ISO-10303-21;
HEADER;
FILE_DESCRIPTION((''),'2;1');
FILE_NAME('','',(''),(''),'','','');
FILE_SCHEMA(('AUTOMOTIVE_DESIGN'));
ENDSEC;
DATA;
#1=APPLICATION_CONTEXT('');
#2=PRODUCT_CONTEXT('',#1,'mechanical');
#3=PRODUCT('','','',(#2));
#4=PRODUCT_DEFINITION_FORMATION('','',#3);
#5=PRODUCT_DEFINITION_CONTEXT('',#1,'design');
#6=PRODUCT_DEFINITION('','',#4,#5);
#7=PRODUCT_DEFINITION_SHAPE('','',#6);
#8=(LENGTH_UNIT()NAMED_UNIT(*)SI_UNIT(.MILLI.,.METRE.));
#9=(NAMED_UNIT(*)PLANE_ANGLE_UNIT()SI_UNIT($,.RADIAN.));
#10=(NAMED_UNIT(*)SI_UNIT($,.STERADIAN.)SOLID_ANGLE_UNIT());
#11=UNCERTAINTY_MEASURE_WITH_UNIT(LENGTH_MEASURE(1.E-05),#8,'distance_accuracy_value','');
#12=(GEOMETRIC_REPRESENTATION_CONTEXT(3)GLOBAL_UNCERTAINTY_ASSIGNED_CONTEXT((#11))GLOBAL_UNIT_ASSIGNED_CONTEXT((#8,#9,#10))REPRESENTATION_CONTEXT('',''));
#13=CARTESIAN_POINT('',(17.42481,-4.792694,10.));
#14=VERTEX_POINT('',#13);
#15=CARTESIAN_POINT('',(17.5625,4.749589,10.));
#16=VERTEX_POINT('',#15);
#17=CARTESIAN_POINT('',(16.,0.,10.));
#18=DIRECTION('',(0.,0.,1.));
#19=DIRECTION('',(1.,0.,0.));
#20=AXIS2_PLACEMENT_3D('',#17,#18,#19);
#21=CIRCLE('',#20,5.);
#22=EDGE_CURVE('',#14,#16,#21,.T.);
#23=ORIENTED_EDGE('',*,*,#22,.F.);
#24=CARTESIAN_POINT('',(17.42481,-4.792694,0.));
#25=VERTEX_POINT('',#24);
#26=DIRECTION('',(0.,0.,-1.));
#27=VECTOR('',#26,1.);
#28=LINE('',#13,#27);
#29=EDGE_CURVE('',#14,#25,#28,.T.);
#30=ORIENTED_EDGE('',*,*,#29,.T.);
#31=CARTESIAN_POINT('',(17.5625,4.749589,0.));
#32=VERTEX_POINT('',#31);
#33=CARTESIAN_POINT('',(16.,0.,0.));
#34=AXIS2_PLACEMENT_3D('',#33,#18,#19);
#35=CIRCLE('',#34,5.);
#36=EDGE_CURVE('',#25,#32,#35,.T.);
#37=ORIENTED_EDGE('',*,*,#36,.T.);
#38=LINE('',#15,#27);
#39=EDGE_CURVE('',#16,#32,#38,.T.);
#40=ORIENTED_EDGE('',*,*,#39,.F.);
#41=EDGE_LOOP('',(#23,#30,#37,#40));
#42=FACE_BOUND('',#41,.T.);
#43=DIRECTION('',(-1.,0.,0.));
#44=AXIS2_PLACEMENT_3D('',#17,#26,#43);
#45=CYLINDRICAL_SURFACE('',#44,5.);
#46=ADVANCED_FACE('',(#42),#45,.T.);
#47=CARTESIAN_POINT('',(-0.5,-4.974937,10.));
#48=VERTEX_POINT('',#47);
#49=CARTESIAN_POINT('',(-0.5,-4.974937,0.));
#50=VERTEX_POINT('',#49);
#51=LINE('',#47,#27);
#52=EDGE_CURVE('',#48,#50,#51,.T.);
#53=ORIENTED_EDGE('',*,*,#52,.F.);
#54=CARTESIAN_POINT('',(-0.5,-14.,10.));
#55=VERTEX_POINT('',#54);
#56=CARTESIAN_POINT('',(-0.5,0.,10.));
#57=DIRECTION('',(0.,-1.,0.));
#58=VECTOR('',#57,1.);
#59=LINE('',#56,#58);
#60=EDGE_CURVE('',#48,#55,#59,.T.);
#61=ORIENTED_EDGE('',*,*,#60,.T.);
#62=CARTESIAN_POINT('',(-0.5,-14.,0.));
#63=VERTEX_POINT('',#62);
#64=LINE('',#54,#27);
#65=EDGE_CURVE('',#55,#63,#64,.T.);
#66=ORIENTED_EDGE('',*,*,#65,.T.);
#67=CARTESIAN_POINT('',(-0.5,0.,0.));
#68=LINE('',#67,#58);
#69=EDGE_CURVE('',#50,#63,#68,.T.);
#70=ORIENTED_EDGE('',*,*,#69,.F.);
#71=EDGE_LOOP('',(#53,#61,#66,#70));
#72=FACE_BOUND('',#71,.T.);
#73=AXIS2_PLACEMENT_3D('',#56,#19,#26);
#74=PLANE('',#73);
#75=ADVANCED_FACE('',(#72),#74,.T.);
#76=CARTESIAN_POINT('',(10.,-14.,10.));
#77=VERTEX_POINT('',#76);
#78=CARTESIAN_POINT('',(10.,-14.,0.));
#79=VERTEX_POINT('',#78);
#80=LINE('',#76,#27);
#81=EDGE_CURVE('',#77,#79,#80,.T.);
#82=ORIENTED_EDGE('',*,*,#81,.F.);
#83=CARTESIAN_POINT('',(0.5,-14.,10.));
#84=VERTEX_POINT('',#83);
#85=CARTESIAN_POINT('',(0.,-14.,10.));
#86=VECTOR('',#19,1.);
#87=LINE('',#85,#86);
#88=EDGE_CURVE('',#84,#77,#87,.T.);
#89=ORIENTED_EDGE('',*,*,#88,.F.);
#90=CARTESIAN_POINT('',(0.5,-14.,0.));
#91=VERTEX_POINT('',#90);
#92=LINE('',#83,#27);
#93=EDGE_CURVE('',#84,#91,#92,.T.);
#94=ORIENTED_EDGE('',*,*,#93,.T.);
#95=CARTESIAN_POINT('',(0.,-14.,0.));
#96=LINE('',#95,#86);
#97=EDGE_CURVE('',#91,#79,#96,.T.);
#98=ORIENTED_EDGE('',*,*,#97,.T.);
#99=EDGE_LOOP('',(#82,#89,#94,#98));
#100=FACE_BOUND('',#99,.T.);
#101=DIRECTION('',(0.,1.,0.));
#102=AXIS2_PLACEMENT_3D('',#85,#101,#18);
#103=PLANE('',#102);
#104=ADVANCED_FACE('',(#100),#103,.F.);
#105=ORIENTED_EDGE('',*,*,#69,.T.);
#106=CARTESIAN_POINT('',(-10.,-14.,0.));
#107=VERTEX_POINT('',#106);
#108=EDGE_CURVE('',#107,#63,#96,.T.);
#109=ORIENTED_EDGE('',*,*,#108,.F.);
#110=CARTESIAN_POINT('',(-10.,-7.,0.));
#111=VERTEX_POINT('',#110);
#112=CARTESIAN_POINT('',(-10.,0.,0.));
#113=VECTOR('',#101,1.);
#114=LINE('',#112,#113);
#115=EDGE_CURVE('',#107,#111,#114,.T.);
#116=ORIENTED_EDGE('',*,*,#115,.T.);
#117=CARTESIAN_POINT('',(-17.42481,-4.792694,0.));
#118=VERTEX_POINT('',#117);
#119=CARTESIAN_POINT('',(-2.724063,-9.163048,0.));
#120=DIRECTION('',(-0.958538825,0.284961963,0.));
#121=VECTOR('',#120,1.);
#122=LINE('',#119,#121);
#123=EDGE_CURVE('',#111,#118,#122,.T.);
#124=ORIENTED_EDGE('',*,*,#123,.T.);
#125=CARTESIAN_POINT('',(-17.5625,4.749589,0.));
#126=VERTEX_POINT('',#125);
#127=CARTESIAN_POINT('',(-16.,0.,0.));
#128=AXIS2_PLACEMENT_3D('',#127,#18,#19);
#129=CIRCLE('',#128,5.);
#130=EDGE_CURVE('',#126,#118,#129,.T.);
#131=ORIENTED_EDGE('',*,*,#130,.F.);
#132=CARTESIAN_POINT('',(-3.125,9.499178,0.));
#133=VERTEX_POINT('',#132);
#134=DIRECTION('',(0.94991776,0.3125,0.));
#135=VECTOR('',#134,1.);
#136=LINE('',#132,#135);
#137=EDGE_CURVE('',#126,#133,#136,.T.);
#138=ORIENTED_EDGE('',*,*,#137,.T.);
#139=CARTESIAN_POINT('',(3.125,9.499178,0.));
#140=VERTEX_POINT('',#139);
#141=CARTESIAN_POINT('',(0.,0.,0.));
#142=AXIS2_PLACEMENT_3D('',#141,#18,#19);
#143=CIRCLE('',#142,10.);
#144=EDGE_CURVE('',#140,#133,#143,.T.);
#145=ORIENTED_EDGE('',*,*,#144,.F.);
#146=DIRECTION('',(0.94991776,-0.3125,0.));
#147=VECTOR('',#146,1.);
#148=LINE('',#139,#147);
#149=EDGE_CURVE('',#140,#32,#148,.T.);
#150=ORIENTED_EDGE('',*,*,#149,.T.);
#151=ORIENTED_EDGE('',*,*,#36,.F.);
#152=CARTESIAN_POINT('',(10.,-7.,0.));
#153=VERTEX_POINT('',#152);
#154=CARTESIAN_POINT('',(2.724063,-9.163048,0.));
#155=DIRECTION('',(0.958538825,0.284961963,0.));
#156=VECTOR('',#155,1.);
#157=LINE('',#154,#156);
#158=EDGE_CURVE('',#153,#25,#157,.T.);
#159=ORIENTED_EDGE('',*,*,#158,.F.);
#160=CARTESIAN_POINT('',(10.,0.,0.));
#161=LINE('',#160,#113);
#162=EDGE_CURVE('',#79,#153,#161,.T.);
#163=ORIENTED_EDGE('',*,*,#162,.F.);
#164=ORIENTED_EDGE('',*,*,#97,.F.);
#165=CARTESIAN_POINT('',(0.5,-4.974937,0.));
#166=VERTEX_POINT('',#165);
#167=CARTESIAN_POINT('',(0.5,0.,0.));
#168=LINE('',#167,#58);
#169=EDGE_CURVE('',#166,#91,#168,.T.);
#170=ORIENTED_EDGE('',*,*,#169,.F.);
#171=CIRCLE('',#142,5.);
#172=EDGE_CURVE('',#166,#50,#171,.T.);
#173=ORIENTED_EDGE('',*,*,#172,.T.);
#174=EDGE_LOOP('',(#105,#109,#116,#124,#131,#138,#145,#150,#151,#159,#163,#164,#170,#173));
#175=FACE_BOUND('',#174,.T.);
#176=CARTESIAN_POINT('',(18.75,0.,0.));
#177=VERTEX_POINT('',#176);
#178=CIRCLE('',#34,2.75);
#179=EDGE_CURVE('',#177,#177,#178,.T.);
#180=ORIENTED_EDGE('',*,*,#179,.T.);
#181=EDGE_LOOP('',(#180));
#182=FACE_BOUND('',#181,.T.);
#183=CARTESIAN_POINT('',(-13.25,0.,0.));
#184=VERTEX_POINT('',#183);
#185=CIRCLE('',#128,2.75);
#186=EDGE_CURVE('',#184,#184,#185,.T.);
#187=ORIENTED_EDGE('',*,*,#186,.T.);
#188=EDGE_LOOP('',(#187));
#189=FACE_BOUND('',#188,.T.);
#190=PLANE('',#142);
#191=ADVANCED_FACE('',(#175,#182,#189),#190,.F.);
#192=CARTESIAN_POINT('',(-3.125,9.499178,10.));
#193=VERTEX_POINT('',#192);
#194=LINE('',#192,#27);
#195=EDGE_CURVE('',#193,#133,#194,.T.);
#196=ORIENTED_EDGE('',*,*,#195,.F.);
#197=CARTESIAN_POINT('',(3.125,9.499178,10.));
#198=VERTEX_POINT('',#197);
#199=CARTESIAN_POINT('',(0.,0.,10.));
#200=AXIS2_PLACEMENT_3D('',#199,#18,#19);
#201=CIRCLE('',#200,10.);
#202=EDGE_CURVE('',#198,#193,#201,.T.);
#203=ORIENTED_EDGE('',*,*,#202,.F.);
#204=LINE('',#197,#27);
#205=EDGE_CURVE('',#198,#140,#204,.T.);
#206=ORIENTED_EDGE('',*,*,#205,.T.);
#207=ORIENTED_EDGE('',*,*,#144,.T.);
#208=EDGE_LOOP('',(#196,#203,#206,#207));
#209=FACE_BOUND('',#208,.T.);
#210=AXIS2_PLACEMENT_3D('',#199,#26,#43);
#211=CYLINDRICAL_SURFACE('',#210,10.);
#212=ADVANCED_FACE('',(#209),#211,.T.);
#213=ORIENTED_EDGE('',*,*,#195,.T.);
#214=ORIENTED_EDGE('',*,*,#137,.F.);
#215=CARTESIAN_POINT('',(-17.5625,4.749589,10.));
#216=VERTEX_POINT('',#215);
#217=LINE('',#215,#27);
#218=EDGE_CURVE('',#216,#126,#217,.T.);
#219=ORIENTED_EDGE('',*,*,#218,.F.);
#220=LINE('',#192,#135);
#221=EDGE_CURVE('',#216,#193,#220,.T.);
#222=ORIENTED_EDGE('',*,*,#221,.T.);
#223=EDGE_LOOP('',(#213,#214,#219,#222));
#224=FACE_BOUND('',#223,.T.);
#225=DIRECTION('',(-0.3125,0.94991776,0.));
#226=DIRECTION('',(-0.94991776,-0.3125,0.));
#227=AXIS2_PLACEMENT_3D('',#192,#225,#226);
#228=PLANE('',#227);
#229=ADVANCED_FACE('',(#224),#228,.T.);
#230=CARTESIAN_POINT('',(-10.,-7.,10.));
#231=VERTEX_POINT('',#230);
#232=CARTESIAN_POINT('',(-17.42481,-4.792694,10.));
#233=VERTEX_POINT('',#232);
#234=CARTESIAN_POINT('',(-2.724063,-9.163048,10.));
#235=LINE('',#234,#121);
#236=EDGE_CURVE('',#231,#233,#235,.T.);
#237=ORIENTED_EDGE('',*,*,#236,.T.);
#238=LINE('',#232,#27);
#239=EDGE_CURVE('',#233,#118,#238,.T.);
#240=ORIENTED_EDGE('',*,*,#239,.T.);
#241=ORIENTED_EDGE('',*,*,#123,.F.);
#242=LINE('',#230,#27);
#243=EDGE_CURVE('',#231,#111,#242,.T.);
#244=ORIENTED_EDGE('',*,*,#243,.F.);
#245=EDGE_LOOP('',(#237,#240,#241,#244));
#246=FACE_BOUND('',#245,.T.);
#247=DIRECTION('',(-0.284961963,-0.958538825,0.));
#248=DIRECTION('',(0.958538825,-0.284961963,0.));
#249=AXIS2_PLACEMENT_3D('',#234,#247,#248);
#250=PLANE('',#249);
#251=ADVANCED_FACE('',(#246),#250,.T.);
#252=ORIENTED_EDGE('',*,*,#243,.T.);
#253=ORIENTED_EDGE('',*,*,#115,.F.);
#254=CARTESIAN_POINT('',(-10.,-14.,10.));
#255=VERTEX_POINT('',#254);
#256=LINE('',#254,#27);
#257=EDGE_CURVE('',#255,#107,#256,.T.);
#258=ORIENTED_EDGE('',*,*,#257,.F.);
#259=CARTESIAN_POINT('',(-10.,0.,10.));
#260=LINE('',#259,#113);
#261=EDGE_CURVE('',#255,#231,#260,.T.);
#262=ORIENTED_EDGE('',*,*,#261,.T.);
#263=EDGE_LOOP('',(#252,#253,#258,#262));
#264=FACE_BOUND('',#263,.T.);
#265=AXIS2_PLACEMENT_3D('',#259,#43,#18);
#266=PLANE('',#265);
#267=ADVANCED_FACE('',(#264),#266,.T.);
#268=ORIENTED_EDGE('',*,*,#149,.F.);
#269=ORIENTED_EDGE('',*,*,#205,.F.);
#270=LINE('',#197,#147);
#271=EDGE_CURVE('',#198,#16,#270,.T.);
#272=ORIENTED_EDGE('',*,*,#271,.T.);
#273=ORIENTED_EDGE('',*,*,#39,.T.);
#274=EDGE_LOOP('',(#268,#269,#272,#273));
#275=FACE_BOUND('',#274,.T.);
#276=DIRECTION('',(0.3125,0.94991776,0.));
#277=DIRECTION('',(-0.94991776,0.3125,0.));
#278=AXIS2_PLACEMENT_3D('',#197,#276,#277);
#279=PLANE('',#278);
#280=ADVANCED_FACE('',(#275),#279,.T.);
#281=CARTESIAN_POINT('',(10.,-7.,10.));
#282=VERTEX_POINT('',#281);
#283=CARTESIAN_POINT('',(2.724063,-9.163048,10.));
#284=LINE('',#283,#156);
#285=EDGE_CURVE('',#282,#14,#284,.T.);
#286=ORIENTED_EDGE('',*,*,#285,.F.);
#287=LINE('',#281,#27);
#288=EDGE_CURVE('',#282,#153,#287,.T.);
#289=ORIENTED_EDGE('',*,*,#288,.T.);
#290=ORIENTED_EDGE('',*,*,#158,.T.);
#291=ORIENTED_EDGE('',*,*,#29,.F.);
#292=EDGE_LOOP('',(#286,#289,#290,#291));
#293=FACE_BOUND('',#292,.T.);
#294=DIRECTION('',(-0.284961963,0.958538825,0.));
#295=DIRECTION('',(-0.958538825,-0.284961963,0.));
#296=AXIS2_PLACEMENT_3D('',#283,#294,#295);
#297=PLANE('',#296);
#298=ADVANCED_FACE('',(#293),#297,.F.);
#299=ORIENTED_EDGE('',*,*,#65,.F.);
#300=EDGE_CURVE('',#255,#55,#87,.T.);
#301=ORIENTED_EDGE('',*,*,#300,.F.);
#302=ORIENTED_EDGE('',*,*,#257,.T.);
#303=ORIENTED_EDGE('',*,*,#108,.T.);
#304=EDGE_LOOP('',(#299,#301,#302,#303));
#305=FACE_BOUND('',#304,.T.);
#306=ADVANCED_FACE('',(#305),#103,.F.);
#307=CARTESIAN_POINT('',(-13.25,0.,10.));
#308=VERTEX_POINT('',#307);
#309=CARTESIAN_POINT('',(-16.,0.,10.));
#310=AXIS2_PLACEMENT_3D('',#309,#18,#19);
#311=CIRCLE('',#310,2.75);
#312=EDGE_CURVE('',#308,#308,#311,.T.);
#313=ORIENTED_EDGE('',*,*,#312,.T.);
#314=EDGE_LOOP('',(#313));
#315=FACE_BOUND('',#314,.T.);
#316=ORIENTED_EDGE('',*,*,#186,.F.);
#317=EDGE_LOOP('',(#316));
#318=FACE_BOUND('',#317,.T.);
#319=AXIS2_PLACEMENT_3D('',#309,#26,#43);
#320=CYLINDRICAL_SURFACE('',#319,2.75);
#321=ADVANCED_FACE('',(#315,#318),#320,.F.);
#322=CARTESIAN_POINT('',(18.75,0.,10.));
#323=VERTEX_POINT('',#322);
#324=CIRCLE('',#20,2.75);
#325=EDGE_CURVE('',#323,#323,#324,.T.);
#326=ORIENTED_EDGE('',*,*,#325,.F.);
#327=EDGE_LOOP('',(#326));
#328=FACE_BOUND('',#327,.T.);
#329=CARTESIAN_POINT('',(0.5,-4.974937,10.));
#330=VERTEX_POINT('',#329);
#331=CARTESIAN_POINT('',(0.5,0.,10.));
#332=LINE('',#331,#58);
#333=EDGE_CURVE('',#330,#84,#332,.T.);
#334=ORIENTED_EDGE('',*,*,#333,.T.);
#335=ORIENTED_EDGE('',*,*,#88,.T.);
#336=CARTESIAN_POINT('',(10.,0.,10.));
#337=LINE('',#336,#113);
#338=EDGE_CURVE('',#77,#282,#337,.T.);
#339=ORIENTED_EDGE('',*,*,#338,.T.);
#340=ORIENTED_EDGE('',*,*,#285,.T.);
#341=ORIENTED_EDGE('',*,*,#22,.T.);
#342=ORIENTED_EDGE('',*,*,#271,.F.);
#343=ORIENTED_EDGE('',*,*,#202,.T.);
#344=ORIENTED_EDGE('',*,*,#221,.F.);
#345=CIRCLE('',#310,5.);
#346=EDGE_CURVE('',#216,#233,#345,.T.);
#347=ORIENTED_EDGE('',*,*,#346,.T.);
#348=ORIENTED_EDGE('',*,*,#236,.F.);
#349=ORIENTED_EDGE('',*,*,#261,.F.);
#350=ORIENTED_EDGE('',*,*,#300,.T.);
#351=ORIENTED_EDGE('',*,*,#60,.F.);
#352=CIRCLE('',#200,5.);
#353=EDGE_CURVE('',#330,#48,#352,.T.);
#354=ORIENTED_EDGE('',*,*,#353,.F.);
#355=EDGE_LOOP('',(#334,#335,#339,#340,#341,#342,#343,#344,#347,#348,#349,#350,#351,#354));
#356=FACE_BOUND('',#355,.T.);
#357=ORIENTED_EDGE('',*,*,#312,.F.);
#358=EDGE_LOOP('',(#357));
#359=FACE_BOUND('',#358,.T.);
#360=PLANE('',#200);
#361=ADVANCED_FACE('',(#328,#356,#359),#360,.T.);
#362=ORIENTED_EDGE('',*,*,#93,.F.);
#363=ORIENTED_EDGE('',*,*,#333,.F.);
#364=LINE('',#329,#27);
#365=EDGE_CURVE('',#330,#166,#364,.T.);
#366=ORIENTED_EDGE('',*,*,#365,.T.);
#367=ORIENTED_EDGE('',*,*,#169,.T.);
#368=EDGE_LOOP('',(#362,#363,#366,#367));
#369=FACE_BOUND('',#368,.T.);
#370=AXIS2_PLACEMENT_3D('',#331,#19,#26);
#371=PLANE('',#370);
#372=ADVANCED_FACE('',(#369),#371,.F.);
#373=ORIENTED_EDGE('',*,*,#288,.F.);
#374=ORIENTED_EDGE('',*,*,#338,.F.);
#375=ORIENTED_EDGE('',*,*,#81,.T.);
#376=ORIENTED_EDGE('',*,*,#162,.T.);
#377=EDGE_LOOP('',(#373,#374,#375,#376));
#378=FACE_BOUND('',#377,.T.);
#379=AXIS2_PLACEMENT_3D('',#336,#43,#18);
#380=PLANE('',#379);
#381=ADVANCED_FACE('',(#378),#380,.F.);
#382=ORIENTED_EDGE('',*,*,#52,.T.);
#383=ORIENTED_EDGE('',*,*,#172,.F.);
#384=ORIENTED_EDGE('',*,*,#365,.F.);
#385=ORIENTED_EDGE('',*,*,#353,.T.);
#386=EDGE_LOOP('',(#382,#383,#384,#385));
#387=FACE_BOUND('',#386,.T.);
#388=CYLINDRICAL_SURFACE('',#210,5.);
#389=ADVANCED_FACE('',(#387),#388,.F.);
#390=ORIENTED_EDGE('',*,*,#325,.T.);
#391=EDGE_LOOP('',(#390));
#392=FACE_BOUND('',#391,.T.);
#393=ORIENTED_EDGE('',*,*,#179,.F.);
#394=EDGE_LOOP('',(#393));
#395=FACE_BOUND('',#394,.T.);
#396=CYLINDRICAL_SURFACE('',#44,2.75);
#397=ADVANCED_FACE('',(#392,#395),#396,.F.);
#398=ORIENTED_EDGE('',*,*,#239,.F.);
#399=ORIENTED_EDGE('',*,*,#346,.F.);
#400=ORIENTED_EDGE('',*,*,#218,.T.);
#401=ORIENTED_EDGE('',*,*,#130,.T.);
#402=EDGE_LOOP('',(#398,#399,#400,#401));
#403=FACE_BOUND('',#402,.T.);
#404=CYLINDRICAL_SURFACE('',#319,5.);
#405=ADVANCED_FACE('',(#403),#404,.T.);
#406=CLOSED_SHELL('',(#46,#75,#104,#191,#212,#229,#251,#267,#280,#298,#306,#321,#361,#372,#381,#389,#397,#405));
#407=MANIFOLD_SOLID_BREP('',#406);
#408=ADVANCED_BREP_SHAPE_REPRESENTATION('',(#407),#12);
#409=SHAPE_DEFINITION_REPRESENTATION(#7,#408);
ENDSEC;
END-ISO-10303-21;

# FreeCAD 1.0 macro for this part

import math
import FreeCAD as App
import Part
import Sketcher

V = App.Vector
Q = App.Units.Quantity

doc = App.newDocument("Part")
body = doc.addObject("PartDesign::Body", "Body")

# Sketch on XY plane
sketch1 = doc.addObject("Sketcher::SketchObject", "Sketch")
body.addObject(sketch1)
sketch1.AttachmentSupport = (doc.XY_Plane, [""])
sketch1.MapMode = "FlatFace"
sketch1.addGeometry([
    Part.ArcOfCircle(Part.Circle(V(0, 0, 0), V(0, 0, 1), 10), math.radians(72), math.radians(108)),  # 0
    Part.LineSegment(V(-3.1, 9.5, 0), V(-17.6, 4.7, 0)),  # 1
    Part.ArcOfCircle(Part.Circle(V(-16, 0, 0), V(0, 0, 1), 5), math.radians(108), math.radians(253)),  # 2
    Part.LineSegment(V(-17.4, -4.8, 0), V(-10, -7, 0)),  # 3
    Part.LineSegment(V(-10, -7, 0), V(-10, -14, 0)),  # 4
    Part.LineSegment(V(-10, -14, 0), V(-0.5, -14, 0)),  # 5
    Part.LineSegment(V(-0.5, -14, 0), V(-0.5, -5, 0)),  # 6
    Part.ArcOfCircle(Part.Circle(V(0, 0, 0), V(0, 0, 1), 5), math.radians(0), math.radians(264)),  # 7
    Part.ArcOfCircle(Part.Circle(V(0, 0, 0), V(0, 0, 1), 5), math.radians(-84), math.radians(0)),  # 8
    Part.LineSegment(V(0.5, -5, 0), V(0.5, -14, 0)),  # 9
    Part.LineSegment(V(0.5, -14, 0), V(10, -14, 0)),  # 10
    Part.LineSegment(V(10, -14, 0), V(10, -7, 0)),  # 11
    Part.LineSegment(V(10, -7, 0), V(17.4, -4.8, 0)),  # 12
    Part.ArcOfCircle(Part.Circle(V(16, 0, 0), V(0, 0, 1), 5), math.radians(-73), math.radians(72)),  # 13
    Part.LineSegment(V(17.6, 4.7, 0), V(3.1, 9.5, 0)),  # 14
    Part.Circle(V(-16, 0, 0), V(0, 0, 1), 2.8),  # 15
    Part.Circle(V(16, 0, 0), V(0, 0, 1), 2.8),  # 16
], False)
sketch1.addConstraint([
    Sketcher.Constraint("Tangent", 0, 2, 1, 1),
    Sketcher.Constraint("Tangent", 1, 2, 2, 1),
    Sketcher.Constraint("Tangent", 2, 2, 3, 1),
    Sketcher.Constraint("Coincident", 3, 2, 4, 1),
    Sketcher.Constraint("Coincident", 4, 2, 5, 1),
    Sketcher.Constraint("Coincident", 5, 2, 6, 1),
    Sketcher.Constraint("Coincident", 6, 2, 7, 2),
    Sketcher.Constraint("Tangent", 7, 1, 8, 2),
    Sketcher.Constraint("Coincident", 8, 1, 9, 1),
    Sketcher.Constraint("Coincident", 9, 2, 10, 1),
    Sketcher.Constraint("Coincident", 10, 2, 11, 1),
    Sketcher.Constraint("Coincident", 11, 2, 12, 1),
    Sketcher.Constraint("Tangent", 12, 2, 13, 1),
    Sketcher.Constraint("Tangent", 13, 2, 14, 1),
    Sketcher.Constraint("Tangent", 14, 2, 0, 1),
    Sketcher.Constraint("Vertical", 4),
    Sketcher.Constraint("Horizontal", 5),
    Sketcher.Constraint("Vertical", 6),
    Sketcher.Constraint("Vertical", 9),
    Sketcher.Constraint("Horizontal", 10),
    Sketcher.Constraint("Vertical", 11),
    Sketcher.Constraint("Coincident", 0, 3, -1, 1),
    Sketcher.Constraint("Coincident", 7, 3, -1, 1),
    Sketcher.Constraint("Coincident", 15, 3, 2, 3),
    Sketcher.Constraint("Coincident", 16, 3, 13, 3),
    Sketcher.Constraint("Equal", 2, 7),
    Sketcher.Constraint("Equal", 7, 8),
    Sketcher.Constraint("Equal", 8, 13),
    Sketcher.Constraint("Equal", 15, 16),
    Sketcher.Constraint("Symmetric", 2, 3, 13, 3, -1, 1),
    Sketcher.Constraint("Symmetric", 5, 2, 9, 2, -2),
    Sketcher.Constraint("Symmetric", 3, 2, 11, 2, -2),
    Sketcher.Constraint("PointOnObject", 2, 3, -1),
    Sketcher.Constraint("PointOnObject", 7, 1, -1),
    Sketcher.Constraint("Radius", 0, Q("10 mm")),
    Sketcher.Constraint("Radius", 2, Q("5 mm")),
    Sketcher.Constraint("Diameter", 15, Q("5.5 mm")),
    Sketcher.Constraint("DistanceY", 4, 2, 4, 1, Q("7 mm")),
    Sketcher.Constraint("DistanceX", 5, 1, 5, 2, Q("9.5 mm")),
    Sketcher.Constraint("DistanceX", 2, 3, -1, 1, Q("16 mm")),
    Sketcher.Constraint("DistanceX", 3, 2, -1, 1, Q("10 mm")),
    Sketcher.Constraint("DistanceY", 3, 2, -1, 1, Q("7 mm")),
])
pad1 = doc.addObject("PartDesign::Pad", "Pad")
body.addObject(pad1)
pad1.Profile = sketch1
pad1.Length = 10

doc.recompute()
